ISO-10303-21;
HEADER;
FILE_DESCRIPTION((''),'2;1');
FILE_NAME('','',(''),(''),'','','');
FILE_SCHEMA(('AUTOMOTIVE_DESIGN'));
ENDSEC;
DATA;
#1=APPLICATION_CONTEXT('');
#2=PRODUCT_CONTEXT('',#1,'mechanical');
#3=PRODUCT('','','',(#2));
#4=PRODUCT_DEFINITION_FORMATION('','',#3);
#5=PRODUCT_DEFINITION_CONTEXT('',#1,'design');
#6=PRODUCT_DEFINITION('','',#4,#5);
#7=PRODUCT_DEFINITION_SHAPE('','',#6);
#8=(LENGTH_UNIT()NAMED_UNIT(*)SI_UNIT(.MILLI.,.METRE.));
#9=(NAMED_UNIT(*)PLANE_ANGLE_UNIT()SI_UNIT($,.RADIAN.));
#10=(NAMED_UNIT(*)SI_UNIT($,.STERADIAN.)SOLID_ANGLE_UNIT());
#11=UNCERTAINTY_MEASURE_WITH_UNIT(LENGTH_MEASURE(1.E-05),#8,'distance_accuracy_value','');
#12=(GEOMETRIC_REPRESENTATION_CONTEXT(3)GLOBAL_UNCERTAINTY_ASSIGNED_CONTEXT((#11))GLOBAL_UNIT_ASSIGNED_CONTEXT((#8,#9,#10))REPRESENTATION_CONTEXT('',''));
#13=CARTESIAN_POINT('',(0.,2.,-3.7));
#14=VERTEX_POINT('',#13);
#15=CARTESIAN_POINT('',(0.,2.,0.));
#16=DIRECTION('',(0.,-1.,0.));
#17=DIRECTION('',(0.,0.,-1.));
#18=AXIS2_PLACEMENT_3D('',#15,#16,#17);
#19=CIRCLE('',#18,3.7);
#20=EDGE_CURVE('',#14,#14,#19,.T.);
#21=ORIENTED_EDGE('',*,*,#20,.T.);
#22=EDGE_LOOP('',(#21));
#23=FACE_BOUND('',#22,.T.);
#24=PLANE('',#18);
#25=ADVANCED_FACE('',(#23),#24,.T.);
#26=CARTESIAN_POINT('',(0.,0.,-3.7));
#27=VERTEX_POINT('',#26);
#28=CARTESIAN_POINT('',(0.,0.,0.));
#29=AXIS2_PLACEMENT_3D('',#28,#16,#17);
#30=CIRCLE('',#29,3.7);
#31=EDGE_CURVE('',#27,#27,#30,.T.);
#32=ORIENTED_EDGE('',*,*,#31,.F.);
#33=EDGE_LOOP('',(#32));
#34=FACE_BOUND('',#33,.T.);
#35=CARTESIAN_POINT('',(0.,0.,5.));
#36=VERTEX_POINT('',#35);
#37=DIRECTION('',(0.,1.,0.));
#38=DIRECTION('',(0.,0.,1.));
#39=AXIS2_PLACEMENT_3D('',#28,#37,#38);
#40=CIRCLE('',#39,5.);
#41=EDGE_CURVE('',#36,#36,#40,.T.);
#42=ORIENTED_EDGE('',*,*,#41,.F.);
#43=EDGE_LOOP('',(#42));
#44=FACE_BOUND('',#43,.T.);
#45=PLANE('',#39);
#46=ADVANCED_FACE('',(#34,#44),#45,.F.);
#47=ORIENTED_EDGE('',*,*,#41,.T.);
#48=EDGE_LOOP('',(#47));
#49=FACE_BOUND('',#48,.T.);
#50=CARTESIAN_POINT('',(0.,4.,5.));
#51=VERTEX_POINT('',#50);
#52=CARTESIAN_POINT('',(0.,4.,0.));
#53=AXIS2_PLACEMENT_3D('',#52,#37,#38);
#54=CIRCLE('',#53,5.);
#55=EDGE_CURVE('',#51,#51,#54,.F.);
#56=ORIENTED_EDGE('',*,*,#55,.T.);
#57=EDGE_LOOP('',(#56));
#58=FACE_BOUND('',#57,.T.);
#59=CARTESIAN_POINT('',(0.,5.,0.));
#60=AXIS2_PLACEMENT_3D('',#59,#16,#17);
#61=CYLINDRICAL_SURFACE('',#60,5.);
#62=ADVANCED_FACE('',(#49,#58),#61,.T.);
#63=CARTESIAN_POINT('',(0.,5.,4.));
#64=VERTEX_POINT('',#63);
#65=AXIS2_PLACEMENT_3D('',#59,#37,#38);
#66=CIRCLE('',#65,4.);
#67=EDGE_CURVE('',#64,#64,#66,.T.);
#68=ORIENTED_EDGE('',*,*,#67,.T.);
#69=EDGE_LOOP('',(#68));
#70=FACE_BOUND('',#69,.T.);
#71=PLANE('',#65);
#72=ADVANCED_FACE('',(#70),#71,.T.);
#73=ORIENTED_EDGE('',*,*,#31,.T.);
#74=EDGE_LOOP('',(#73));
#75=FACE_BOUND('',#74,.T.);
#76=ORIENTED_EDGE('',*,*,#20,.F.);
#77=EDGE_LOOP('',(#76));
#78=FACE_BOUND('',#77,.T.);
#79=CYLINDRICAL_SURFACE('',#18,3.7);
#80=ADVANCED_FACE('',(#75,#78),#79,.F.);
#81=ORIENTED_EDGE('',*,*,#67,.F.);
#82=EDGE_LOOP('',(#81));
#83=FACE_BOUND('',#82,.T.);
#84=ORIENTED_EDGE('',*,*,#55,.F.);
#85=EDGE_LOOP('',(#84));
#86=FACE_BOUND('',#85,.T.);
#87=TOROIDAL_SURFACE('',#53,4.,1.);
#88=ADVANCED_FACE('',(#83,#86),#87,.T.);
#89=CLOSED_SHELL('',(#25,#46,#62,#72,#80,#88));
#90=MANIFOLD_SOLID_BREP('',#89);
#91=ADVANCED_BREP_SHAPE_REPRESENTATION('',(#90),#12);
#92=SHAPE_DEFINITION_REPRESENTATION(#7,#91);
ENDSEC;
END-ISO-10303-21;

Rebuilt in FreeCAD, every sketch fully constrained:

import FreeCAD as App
import Part
import Sketcher
from FreeCAD import Vector


def edges_at(feature, points):
    """Names of the edges that pass closest to the given points."""
    edges = feature.Shape.Edges
    near = lambda p: min(range(len(edges)), key=lambda i: edges[i].distToShape(Part.Vertex(*p))[0])
    return sorted({f"Edge{near(p) + 1}" for p in points})

doc = App.newDocument("Part")
body = doc.addObject("PartDesign::Body", "Body")

# Sketch on XZ plane
sketch1 = body.newObject("Sketcher::SketchObject", "Sketch")
sketch1.AttachmentSupport = (doc.getObject("XZ_Plane"), [""])
sketch1.MapMode = "FlatFace"
sketch1.addGeometry(Part.Circle(Vector(0, 0, 0), Vector(0, 0, 1), 5), False)
sketch1.addConstraint([
    Sketcher.Constraint("Coincident", 0, 3, -1, 1),
    Sketcher.Constraint("Diameter", 0, 10.0),
])
pad1 = body.newObject("PartDesign::Pad", "Pad")
pad1.Profile = sketch1
pad1.Length = 5
pad1.Reversed = True
doc.recompute()

fillet = body.newObject("PartDesign::Fillet", "Fillet")
fillet.Base = (pad1, edges_at(pad1, [(-5, 5, 0)]))
fillet.Radius = 1

# Sketch on XZ plane
sketch2 = body.newObject("Sketcher::SketchObject", "Sketch001")
sketch2.AttachmentSupport = (doc.getObject("XZ_Plane"), [""])
sketch2.MapMode = "FlatFace"
sketch2.addGeometry(Part.Circle(Vector(0, 0, 0), Vector(0, 0, 1), 3.7), False)
sketch2.addConstraint([
    Sketcher.Constraint("Coincident", 0, 3, -1, 1),
    Sketcher.Constraint("Diameter", 0, 7.4),
])
pocket1 = body.newObject("PartDesign::Pocket", "Pocket")
pocket1.Profile = sketch2
pocket1.Length = 2

doc.recompute()
